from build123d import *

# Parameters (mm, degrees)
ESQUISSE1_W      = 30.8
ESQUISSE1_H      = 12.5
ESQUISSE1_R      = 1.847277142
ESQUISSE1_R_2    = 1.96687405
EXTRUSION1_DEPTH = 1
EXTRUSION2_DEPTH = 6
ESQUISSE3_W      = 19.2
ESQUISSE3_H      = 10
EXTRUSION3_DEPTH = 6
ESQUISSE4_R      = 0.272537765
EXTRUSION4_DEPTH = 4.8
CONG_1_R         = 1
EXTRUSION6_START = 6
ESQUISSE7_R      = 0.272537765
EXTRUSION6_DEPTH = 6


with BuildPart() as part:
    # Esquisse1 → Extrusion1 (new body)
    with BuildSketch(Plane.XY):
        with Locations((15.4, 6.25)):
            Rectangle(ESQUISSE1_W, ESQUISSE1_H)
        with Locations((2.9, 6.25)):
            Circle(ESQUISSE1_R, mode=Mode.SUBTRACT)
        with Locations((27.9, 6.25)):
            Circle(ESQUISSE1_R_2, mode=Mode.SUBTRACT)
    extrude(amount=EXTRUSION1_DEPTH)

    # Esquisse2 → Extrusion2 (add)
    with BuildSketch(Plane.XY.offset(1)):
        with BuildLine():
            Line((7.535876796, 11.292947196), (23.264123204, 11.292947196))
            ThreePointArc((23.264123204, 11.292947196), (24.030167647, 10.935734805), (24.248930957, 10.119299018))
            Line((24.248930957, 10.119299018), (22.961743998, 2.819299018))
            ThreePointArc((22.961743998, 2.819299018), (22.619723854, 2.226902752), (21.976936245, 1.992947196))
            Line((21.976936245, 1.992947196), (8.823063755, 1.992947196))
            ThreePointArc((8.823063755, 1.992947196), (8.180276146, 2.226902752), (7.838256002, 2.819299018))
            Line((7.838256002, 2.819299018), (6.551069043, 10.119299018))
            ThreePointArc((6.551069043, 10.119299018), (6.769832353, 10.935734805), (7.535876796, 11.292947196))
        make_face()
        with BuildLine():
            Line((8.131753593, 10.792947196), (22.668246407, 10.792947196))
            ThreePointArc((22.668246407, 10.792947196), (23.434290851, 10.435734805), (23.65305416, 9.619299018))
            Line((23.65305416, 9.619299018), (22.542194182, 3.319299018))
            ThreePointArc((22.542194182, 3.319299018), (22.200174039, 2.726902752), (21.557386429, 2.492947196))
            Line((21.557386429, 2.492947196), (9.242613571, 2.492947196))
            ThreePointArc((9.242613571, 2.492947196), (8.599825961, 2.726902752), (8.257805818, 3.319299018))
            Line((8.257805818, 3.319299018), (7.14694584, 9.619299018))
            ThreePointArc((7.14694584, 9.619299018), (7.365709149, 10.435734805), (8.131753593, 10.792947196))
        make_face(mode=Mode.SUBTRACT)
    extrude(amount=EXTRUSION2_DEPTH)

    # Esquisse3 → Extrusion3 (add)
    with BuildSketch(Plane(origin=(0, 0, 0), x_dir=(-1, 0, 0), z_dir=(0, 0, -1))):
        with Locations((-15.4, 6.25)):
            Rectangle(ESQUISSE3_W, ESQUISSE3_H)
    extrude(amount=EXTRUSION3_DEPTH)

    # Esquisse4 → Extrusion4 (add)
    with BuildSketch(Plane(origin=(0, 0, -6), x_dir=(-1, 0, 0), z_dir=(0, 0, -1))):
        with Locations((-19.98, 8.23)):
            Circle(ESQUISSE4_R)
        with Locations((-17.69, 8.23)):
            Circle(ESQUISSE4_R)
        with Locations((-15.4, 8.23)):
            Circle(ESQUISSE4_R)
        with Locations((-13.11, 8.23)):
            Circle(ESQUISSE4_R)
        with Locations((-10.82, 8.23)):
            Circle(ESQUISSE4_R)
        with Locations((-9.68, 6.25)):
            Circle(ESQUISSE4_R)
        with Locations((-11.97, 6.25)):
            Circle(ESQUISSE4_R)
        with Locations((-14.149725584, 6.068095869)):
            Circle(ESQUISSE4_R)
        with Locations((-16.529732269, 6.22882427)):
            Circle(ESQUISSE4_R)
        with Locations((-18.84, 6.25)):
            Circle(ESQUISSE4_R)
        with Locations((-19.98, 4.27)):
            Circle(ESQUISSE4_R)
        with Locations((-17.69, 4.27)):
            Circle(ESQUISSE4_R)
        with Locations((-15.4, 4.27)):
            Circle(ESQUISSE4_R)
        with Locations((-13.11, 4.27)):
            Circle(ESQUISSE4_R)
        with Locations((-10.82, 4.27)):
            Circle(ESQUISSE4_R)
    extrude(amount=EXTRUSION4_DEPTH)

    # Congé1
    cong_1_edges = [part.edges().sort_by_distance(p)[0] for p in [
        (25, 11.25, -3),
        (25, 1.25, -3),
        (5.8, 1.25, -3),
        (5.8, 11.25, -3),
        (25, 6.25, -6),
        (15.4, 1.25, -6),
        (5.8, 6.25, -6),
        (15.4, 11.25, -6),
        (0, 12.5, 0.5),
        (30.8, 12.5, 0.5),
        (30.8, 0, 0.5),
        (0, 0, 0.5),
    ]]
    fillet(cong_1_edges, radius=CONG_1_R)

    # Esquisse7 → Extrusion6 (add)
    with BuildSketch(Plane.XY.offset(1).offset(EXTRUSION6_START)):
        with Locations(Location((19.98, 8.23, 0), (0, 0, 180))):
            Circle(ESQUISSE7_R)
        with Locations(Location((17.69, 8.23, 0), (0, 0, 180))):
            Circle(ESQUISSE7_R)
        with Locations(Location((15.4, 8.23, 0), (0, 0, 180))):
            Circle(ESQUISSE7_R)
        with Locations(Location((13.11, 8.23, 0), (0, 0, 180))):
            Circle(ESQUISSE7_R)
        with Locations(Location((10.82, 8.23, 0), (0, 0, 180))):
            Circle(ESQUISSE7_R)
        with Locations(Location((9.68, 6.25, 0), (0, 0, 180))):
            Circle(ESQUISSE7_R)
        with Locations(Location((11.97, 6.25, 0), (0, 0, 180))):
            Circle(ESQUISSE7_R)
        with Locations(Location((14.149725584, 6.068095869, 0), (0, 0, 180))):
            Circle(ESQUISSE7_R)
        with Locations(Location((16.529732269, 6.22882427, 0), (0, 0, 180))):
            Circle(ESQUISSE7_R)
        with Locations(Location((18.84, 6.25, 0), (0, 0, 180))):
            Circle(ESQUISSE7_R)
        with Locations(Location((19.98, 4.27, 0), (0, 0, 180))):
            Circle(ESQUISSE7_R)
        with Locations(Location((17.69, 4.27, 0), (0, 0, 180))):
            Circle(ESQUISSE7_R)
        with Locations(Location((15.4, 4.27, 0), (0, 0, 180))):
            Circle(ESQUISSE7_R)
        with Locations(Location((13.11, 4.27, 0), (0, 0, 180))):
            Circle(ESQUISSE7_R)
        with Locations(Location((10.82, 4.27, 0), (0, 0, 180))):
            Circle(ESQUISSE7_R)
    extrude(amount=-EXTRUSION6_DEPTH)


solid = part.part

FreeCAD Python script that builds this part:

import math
import FreeCAD as App
import Part
import Sketcher
Q = App.Units.Quantity


def edges_at(feature, points):
    """Names of the edges that pass closest to the given points."""
    edges = feature.Shape.Edges
    near = lambda p: min(range(len(edges)), key=lambda i: edges[i].distToShape(Part.Vertex(*p))[0])
    return sorted({f"Edge{near(p) + 1}" for p in points})


def add_polygon(sketch, points):
    """Adds a closed chain of lines whose ends are joined by coincident constraints."""
    first, n = sketch.GeometryCount, len(points)
    for a, b in zip(points, points[1:] + points[:1]):
        sketch.addGeometry(Part.LineSegment(App.Vector(*a, 0), App.Vector(*b, 0)), False)
    for i in range(n):
        sketch.addConstraint(Sketcher.Constraint("Coincident", first + i, 2, first + (i + 1) % n, 1))

doc = App.newDocument("Part")
body = doc.addObject("PartDesign::Body", "Body")

# Sketch on XY plane
sketch1 = body.newObject("Sketcher::SketchObject", "Sketch")
sketch1.AttachmentSupport = (doc.getObject("XY_Plane"), [""])
sketch1.MapMode = "FlatFace"
add_polygon(sketch1, [(0, 12.5), (0, 0), (30.8, 0), (30.8, 12.5)])  # lines 0-3
sketch1.addGeometry(Part.Circle(App.Vector(2.9, 6.2, 0), App.Vector(0, 0, 1), 1.8), False)  # 4
sketch1.addGeometry(Part.Circle(App.Vector(27.9, 6.2, 0), App.Vector(0, 0, 1), 2), False)  # 5
sketch1.addConstraint(Sketcher.Constraint("Vertical", 0))
sketch1.addConstraint(Sketcher.Constraint("Horizontal", 1))
sketch1.addConstraint(Sketcher.Constraint("Vertical", 2))
sketch1.addConstraint(Sketcher.Constraint("Horizontal", 3))
sketch1.addConstraint(Sketcher.Constraint("Coincident", 0, 2, -1, 1))
sketch1.addConstraint(Sketcher.Constraint("Horizontal", 4, 3, 5, 3))
sketch1.addConstraint(Sketcher.Constraint("DistanceX", 1, 1, 1, 2, Q("30.8 mm")))
sketch1.addConstraint(Sketcher.Constraint("DistanceY", 0, 2, 0, 1, Q("12.5 mm")))
sketch1.addConstraint(Sketcher.Constraint("DistanceX", 4, 3, 5, 3, Q("25 mm")))
sketch1.addConstraint(Sketcher.Constraint("DistanceX", -1, 1, 4, 3, Q("2.9 mm")))
sketch1.addConstraint(Sketcher.Constraint("Diameter", 5, Q("3.933748 mm")))
sketch1.addConstraint(Sketcher.Constraint("DistanceY", -1, 1, 4, 3, Q("6.25 mm")))
sketch1.addConstraint(Sketcher.Constraint("Diameter", 4, Q("3.694554 mm")))
pad1 = body.newObject("PartDesign::Pad", "Pad")
pad1.Profile = sketch1
pad1.Length = 1

# Sketch on XY plane
sketch2 = body.newObject("Sketcher::SketchObject", "Sketch001")
sketch2.AttachmentSupport = (doc.getObject("XY_Plane"), [""])
sketch2.MapMode = "FlatFace"
sketch2.AttachmentOffset = App.Placement(App.Vector(0, 0, 1), App.Rotation())
sketch2.addGeometry(Part.LineSegment(App.Vector(23.3, 11.3, 0), App.Vector(7.5, 11.3, 0)), False)
sketch2.addGeometry(Part.ArcOfCircle(Part.Circle(App.Vector(7.5, 10.3, 0), App.Vector(0, 0, 1), 1), math.radians(90), math.radians(190)), False)
sketch2.addGeometry(Part.LineSegment(App.Vector(6.6, 10.1, 0), App.Vector(7.8, 2.8, 0)), False)
sketch2.addGeometry(Part.ArcOfCircle(Part.Circle(App.Vector(8.8, 3, 0), App.Vector(0, 0, 1), 1), math.radians(-170), math.radians(-90)), False)
sketch2.addGeometry(Part.LineSegment(App.Vector(8.8, 2, 0), App.Vector(22, 2, 0)), False)
sketch2.addGeometry(Part.ArcOfCircle(Part.Circle(App.Vector(22, 3, 0), App.Vector(0, 0, 1), 1), math.radians(-90), math.radians(-10)), False)
sketch2.addGeometry(Part.LineSegment(App.Vector(23, 2.8, 0), App.Vector(24.2, 10.1, 0)), False)
sketch2.addGeometry(Part.ArcOfCircle(Part.Circle(App.Vector(23.3, 10.3, 0), App.Vector(0, 0, 1), 1), math.radians(-10), math.radians(90)), False)
sketch2.addGeometry(Part.LineSegment(App.Vector(8.1, 10.8, 0), App.Vector(22.7, 10.8, 0)), False)
sketch2.addGeometry(Part.ArcOfCircle(Part.Circle(App.Vector(22.7, 9.8, 0), App.Vector(0, 0, 1), 1), math.radians(-10), math.radians(90)), False)
sketch2.addGeometry(Part.LineSegment(App.Vector(23.7, 9.6, 0), App.Vector(22.5, 3.3, 0)), False)
sketch2.addGeometry(Part.ArcOfCircle(Part.Circle(App.Vector(21.6, 3.5, 0), App.Vector(0, 0, 1), 1), math.radians(-90), math.radians(-10)), False)
sketch2.addGeometry(Part.LineSegment(App.Vector(21.6, 2.5, 0), App.Vector(9.2, 2.5, 0)), False)
sketch2.addGeometry(Part.ArcOfCircle(Part.Circle(App.Vector(9.2, 3.5, 0), App.Vector(0, 0, 1), 1), math.radians(-170), math.radians(-90)), False)
sketch2.addGeometry(Part.LineSegment(App.Vector(8.3, 3.3, 0), App.Vector(7.1, 9.6, 0)), False)
sketch2.addGeometry(Part.ArcOfCircle(Part.Circle(App.Vector(8.1, 9.8, 0), App.Vector(0, 0, 1), 1), math.radians(90), math.radians(190)), False)
sketch2.addConstraint(Sketcher.Constraint("Tangent", 0, 2, 1, 1))
sketch2.addConstraint(Sketcher.Constraint("Tangent", 1, 2, 2, 1))
sketch2.addConstraint(Sketcher.Constraint("Tangent", 2, 2, 3, 1))
sketch2.addConstraint(Sketcher.Constraint("Tangent", 3, 2, 4, 1))
sketch2.addConstraint(Sketcher.Constraint("Tangent", 4, 2, 5, 1))
sketch2.addConstraint(Sketcher.Constraint("Tangent", 5, 2, 6, 1))
sketch2.addConstraint(Sketcher.Constraint("Tangent", 6, 2, 7, 1))
sketch2.addConstraint(Sketcher.Constraint("Tangent", 7, 2, 0, 1))
sketch2.addConstraint(Sketcher.Constraint("Tangent", 8, 2, 9, 2))
sketch2.addConstraint(Sketcher.Constraint("Tangent", 9, 1, 10, 1))
sketch2.addConstraint(Sketcher.Constraint("Tangent", 10, 2, 11, 2))
sketch2.addConstraint(Sketcher.Constraint("Tangent", 11, 1, 12, 1))
sketch2.addConstraint(Sketcher.Constraint("Tangent", 12, 2, 13, 2))
sketch2.addConstraint(Sketcher.Constraint("Tangent", 13, 1, 14, 1))
sketch2.addConstraint(Sketcher.Constraint("Tangent", 14, 2, 15, 2))
sketch2.addConstraint(Sketcher.Constraint("Tangent", 15, 1, 8, 1))
sketch2.addConstraint(Sketcher.Constraint("Horizontal", 0))
sketch2.addConstraint(Sketcher.Constraint("Horizontal", 4))
sketch2.addConstraint(Sketcher.Constraint("Horizontal", 8))
sketch2.addConstraint(Sketcher.Constraint("Horizontal", 12))
sketch2.addConstraint(Sketcher.Constraint("Equal", 1, 3))
sketch2.addConstraint(Sketcher.Constraint("Equal", 3, 5))
sketch2.addConstraint(Sketcher.Constraint("Equal", 5, 7))
sketch2.addConstraint(Sketcher.Constraint("Equal", 7, 9))
sketch2.addConstraint(Sketcher.Constraint("Equal", 9, 11))
sketch2.addConstraint(Sketcher.Constraint("Equal", 11, 13))
sketch2.addConstraint(Sketcher.Constraint("Equal", 13, 15))
sketch2.addConstraint(Sketcher.Constraint("Parallel", 6, 10))
sketch2.addConstraint(Sketcher.Constraint("Parallel", 2, 14))
sketch2.addConstraint(Sketcher.Constraint("Horizontal", 2, 2, 5, 2))
sketch2.addConstraint(Sketcher.Constraint("Radius", 1, Q("1 mm")))
sketch2.addConstraint(Sketcher.Constraint("Angle", 2, Q("-80 deg")))
sketch2.addConstraint(Sketcher.Constraint("DistanceY", 3, 3, 1, 3, Q("7.3 mm")))
sketch2.addConstraint(Sketcher.Constraint("DistanceY", 9, 3, 7, 3, Q("0.5 mm")))
sketch2.addConstraint(Sketcher.Constraint("DistanceY", 5, 3, 11, 3, Q("0.5 mm")))
sketch2.addConstraint(Sketcher.Constraint("DistanceY", -1, 1, 1, 2, Q("10.119299 mm")))
sketch2.addConstraint(Sketcher.Constraint("DistanceX", 0, 2, 0, 1, Q("15.728246 mm")))
sketch2.addConstraint(Sketcher.Constraint("DistanceX", 8, 1, 8, 2, Q("14.536493 mm")))
sketch2.addConstraint(Sketcher.Constraint("DistanceX", -1, 1, 1, 2, Q("6.551069 mm")))
sketch2.addConstraint(Sketcher.Constraint("DistanceX", 5, 3, 9, 3, Q("0.69131 mm")))
pad2 = body.newObject("PartDesign::Pad", "Pad001")
pad2.Profile = sketch2
pad2.Length = 6

# Sketch on XY plane
sketch3 = body.newObject("Sketcher::SketchObject", "Sketch002")
sketch3.AttachmentSupport = (doc.getObject("XY_Plane"), [""])
sketch3.MapMode = "FlatFace"
add_polygon(sketch3, [(25, 11), (25, 1), (6, 1), (6, 11)])  # lines 0-3
sketch3.addConstraint(Sketcher.Constraint("Vertical", 0))
sketch3.addConstraint(Sketcher.Constraint("Horizontal", 1))
sketch3.addConstraint(Sketcher.Constraint("Vertical", 2))
sketch3.addConstraint(Sketcher.Constraint("Horizontal", 3))
sketch3.addConstraint(Sketcher.Constraint("DistanceY", 0, 2, 0, 1, Q("10 mm")))
sketch3.addConstraint(Sketcher.Constraint("DistanceX", 1, 2, 1, 1, Q("19.2 mm")))
sketch3.addConstraint(Sketcher.Constraint("DistanceX", -1, 1, 0, 2, Q("25 mm")))
sketch3.addConstraint(Sketcher.Constraint("DistanceY", -1, 1, 0, 2, Q("1.25 mm")))
pad3 = body.newObject("PartDesign::Pad", "Pad002")
pad3.Profile = sketch3
pad3.Length = 6
pad3.Reversed = True

# Sketch on XY plane
sketch4 = body.newObject("Sketcher::SketchObject", "Sketch003")
sketch4.AttachmentSupport = (doc.getObject("XY_Plane"), [""])
sketch4.MapMode = "FlatFace"
sketch4.AttachmentOffset = App.Placement(App.Vector(0, 0, -6), App.Rotation())
sketch4.addGeometry(Part.Circle(App.Vector(19.98, 8.23, 0), App.Vector(0, 0, 1), 0.27), False)
sketch4.addGeometry(Part.Circle(App.Vector(17.69, 8.23, 0), App.Vector(0, 0, 1), 0.27), False)
sketch4.addGeometry(Part.Circle(App.Vector(15.4, 8.23, 0), App.Vector(0, 0, 1), 0.27), False)
sketch4.addGeometry(Part.Circle(App.Vector(13.11, 8.23, 0), App.Vector(0, 0, 1), 0.27), False)
sketch4.addGeometry(Part.Circle(App.Vector(10.82, 8.23, 0), App.Vector(0, 0, 1), 0.27), False)
sketch4.addGeometry(Part.Circle(App.Vector(9.68, 6.25, 0), App.Vector(0, 0, 1), 0.27), False)
sketch4.addGeometry(Part.Circle(App.Vector(11.97, 6.25, 0), App.Vector(0, 0, 1), 0.27), False)
sketch4.addGeometry(Part.Circle(App.Vector(14.15, 6.07, 0), App.Vector(0, 0, 1), 0.27), False)
sketch4.addGeometry(Part.Circle(App.Vector(16.53, 6.23, 0), App.Vector(0, 0, 1), 0.27), False)
sketch4.addGeometry(Part.Circle(App.Vector(18.84, 6.25, 0), App.Vector(0, 0, 1), 0.27), False)
sketch4.addGeometry(Part.Circle(App.Vector(19.98, 4.27, 0), App.Vector(0, 0, 1), 0.27), False)
sketch4.addGeometry(Part.Circle(App.Vector(17.69, 4.27, 0), App.Vector(0, 0, 1), 0.27), False)
sketch4.addGeometry(Part.Circle(App.Vector(15.4, 4.27, 0), App.Vector(0, 0, 1), 0.27), False)
sketch4.addGeometry(Part.Circle(App.Vector(13.11, 4.27, 0), App.Vector(0, 0, 1), 0.27), False)
sketch4.addGeometry(Part.Circle(App.Vector(10.82, 4.27, 0), App.Vector(0, 0, 1), 0.27), False)
sketch4.addConstraint(Sketcher.Constraint("Equal", 0, 1))
sketch4.addConstraint(Sketcher.Constraint("Equal", 1, 2))
sketch4.addConstraint(Sketcher.Constraint("Equal", 2, 3))
sketch4.addConstraint(Sketcher.Constraint("Equal", 3, 4))
sketch4.addConstraint(Sketcher.Constraint("Equal", 4, 5))
sketch4.addConstraint(Sketcher.Constraint("Equal", 5, 6))
sketch4.addConstraint(Sketcher.Constraint("Equal", 6, 7))
sketch4.addConstraint(Sketcher.Constraint("Equal", 7, 8))
sketch4.addConstraint(Sketcher.Constraint("Equal", 8, 9))
sketch4.addConstraint(Sketcher.Constraint("Equal", 9, 10))
sketch4.addConstraint(Sketcher.Constraint("Equal", 10, 11))
sketch4.addConstraint(Sketcher.Constraint("Equal", 11, 12))
sketch4.addConstraint(Sketcher.Constraint("Equal", 12, 13))
sketch4.addConstraint(Sketcher.Constraint("Equal", 13, 14))
sketch4.addConstraint(Sketcher.Constraint("Horizontal", 0, 3, 1, 3))
sketch4.addConstraint(Sketcher.Constraint("Horizontal", 1, 3, 2, 3))
sketch4.addConstraint(Sketcher.Constraint("Horizontal", 2, 3, 3, 3))
sketch4.addConstraint(Sketcher.Constraint("Horizontal", 3, 3, 4, 3))
sketch4.addConstraint(Sketcher.Constraint("Horizontal", 5, 3, 6, 3))
sketch4.addConstraint(Sketcher.Constraint("Horizontal", 6, 3, 9, 3))
sketch4.addConstraint(Sketcher.Constraint("Horizontal", 10, 3, 11, 3))
sketch4.addConstraint(Sketcher.Constraint("Horizontal", 11, 3, 12, 3))
sketch4.addConstraint(Sketcher.Constraint("Horizontal", 12, 3, 13, 3))
sketch4.addConstraint(Sketcher.Constraint("Horizontal", 13, 3, 14, 3))
sketch4.addConstraint(Sketcher.Constraint("Vertical", 0, 3, 10, 3))
sketch4.addConstraint(Sketcher.Constraint("Vertical", 1, 3, 11, 3))
sketch4.addConstraint(Sketcher.Constraint("Vertical", 2, 3, 12, 3))
sketch4.addConstraint(Sketcher.Constraint("Vertical", 3, 3, 13, 3))
sketch4.addConstraint(Sketcher.Constraint("Vertical", 4, 3, 14, 3))
sketch4.addConstraint(Sketcher.Constraint("DistanceX", -1, 1, 2, 3, Q("15.4 mm")))
sketch4.addConstraint(Sketcher.Constraint("DistanceX", 5, 3, 0, 3, Q("10.3 mm")))
sketch4.addConstraint(Sketcher.Constraint("DistanceX", -1, 1, 0, 3, Q("19.98 mm")))
sketch4.addConstraint(Sketcher.Constraint("DistanceY", -1, 1, 0, 3, Q("8.23 mm")))
sketch4.addConstraint(Sketcher.Constraint("DistanceX", -1, 1, 1, 3, Q("17.69 mm")))
sketch4.addConstraint(Sketcher.Constraint("DistanceX", -1, 1, 3, 3, Q("13.11 mm")))
sketch4.addConstraint(Sketcher.Constraint("DistanceX", -1, 1, 4, 3, Q("10.82 mm")))
sketch4.addConstraint(Sketcher.Constraint("DistanceY", -1, 1, 5, 3, Q("6.25 mm")))
sketch4.addConstraint(Sketcher.Constraint("DistanceX", -1, 1, 6, 3, Q("11.97 mm")))
sketch4.addConstraint(Sketcher.Constraint("DistanceX", -1, 1, 9, 3, Q("18.84 mm")))
sketch4.addConstraint(Sketcher.Constraint("DistanceY", -1, 1, 10, 3, Q("4.27 mm")))
sketch4.addConstraint(Sketcher.Constraint("Diameter", 0, Q("0.545076 mm")))
sketch4.addConstraint(Sketcher.Constraint("DistanceY", 7, 3, 8, 3, Q("0.160728 mm")))
sketch4.addConstraint(Sketcher.Constraint("DistanceX", -1, 1, 7, 3, Q("14.149726 mm")))
sketch4.addConstraint(Sketcher.Constraint("DistanceY", -1, 1, 7, 3, Q("6.068096 mm")))
sketch4.addConstraint(Sketcher.Constraint("DistanceX", -1, 1, 8, 3, Q("16.529732 mm")))
pad4 = body.newObject("PartDesign::Pad", "Pad003")
pad4.Profile = sketch4
pad4.Length = 4.8
pad4.Reversed = True
doc.recompute()

fillet = body.newObject("PartDesign::Fillet", "Fillet")
fillet.Base = (pad4, edges_at(pad4, [
    (25, 11.25, -3),
    (25, 1.25, -3),
    (5.8, 1.25, -3),
    (5.8, 11.25, -3),
    (25, 6.25, -6),
    (15.4, 1.25, -6),
    (5.8, 6.25, -6),
    (15.4, 11.25, -6),
    (0, 12.5, 0.5),
    (30.8, 12.5, 0.5),
    (30.8, 0, 0.5),
    (0, 0, 0.5),
]))
fillet.Radius = 1

# Sketch on XY plane
sketch5 = body.newObject("Sketcher::SketchObject", "Sketch004")
sketch5.AttachmentSupport = (doc.getObject("XY_Plane"), [""])
sketch5.MapMode = "FlatFace"
sketch5.AttachmentOffset = App.Placement(App.Vector(0, 0, 7), App.Rotation())
sketch5.addGeometry(Part.Circle(App.Vector(19.98, 8.23, 0), App.Vector(0, 0, 1), 0.27), False)
sketch5.addGeometry(Part.Circle(App.Vector(17.69, 8.23, 0), App.Vector(0, 0, 1), 0.27), False)
sketch5.addGeometry(Part.Circle(App.Vector(15.4, 8.23, 0), App.Vector(0, 0, 1), 0.27), False)
sketch5.addGeometry(Part.Circle(App.Vector(13.11, 8.23, 0), App.Vector(0, 0, 1), 0.27), False)
sketch5.addGeometry(Part.Circle(App.Vector(10.82, 8.23, 0), App.Vector(0, 0, 1), 0.27), False)
sketch5.addGeometry(Part.Circle(App.Vector(9.68, 6.25, 0), App.Vector(0, 0, 1), 0.27), False)
sketch5.addGeometry(Part.Circle(App.Vector(11.97, 6.25, 0), App.Vector(0, 0, 1), 0.27), False)
sketch5.addGeometry(Part.Circle(App.Vector(14.15, 6.07, 0), App.Vector(0, 0, 1), 0.27), False)
sketch5.addGeometry(Part.Circle(App.Vector(16.53, 6.23, 0), App.Vector(0, 0, 1), 0.27), False)
sketch5.addGeometry(Part.Circle(App.Vector(18.84, 6.25, 0), App.Vector(0, 0, 1), 0.27), False)
sketch5.addGeometry(Part.Circle(App.Vector(19.98, 4.27, 0), App.Vector(0, 0, 1), 0.27), False)
sketch5.addGeometry(Part.Circle(App.Vector(17.69, 4.27, 0), App.Vector(0, 0, 1), 0.27), False)
sketch5.addGeometry(Part.Circle(App.Vector(15.4, 4.27, 0), App.Vector(0, 0, 1), 0.27), False)
sketch5.addGeometry(Part.Circle(App.Vector(13.11, 4.27, 0), App.Vector(0, 0, 1), 0.27), False)
sketch5.addGeometry(Part.Circle(App.Vector(10.82, 4.27, 0), App.Vector(0, 0, 1), 0.27), False)
sketch5.addConstraint(Sketcher.Constraint("Equal", 0, 1))
sketch5.addConstraint(Sketcher.Constraint("Equal", 1, 2))
sketch5.addConstraint(Sketcher.Constraint("Equal", 2, 3))
sketch5.addConstraint(Sketcher.Constraint("Equal", 3, 4))
sketch5.addConstraint(Sketcher.Constraint("Equal", 4, 5))
sketch5.addConstraint(Sketcher.Constraint("Equal", 5, 6))
sketch5.addConstraint(Sketcher.Constraint("Equal", 6, 7))
sketch5.addConstraint(Sketcher.Constraint("Equal", 7, 8))
sketch5.addConstraint(Sketcher.Constraint("Equal", 8, 9))
sketch5.addConstraint(Sketcher.Constraint("Equal", 9, 10))
sketch5.addConstraint(Sketcher.Constraint("Equal", 10, 11))
sketch5.addConstraint(Sketcher.Constraint("Equal", 11, 12))
sketch5.addConstraint(Sketcher.Constraint("Equal", 12, 13))
sketch5.addConstraint(Sketcher.Constraint("Equal", 13, 14))
sketch5.addConstraint(Sketcher.Constraint("Horizontal", 0, 3, 1, 3))
sketch5.addConstraint(Sketcher.Constraint("Horizontal", 1, 3, 2, 3))
sketch5.addConstraint(Sketcher.Constraint("Horizontal", 2, 3, 3, 3))
sketch5.addConstraint(Sketcher.Constraint("Horizontal", 3, 3, 4, 3))
sketch5.addConstraint(Sketcher.Constraint("Horizontal", 5, 3, 6, 3))
sketch5.addConstraint(Sketcher.Constraint("Horizontal", 6, 3, 9, 3))
sketch5.addConstraint(Sketcher.Constraint("Horizontal", 10, 3, 11, 3))
sketch5.addConstraint(Sketcher.Constraint("Horizontal", 11, 3, 12, 3))
sketch5.addConstraint(Sketcher.Constraint("Horizontal", 12, 3, 13, 3))
sketch5.addConstraint(Sketcher.Constraint("Horizontal", 13, 3, 14, 3))
sketch5.addConstraint(Sketcher.Constraint("Vertical", 0, 3, 10, 3))
sketch5.addConstraint(Sketcher.Constraint("Vertical", 1, 3, 11, 3))
sketch5.addConstraint(Sketcher.Constraint("Vertical", 2, 3, 12, 3))
sketch5.addConstraint(Sketcher.Constraint("Vertical", 3, 3, 13, 3))
sketch5.addConstraint(Sketcher.Constraint("Vertical", 4, 3, 14, 3))
sketch5.addConstraint(Sketcher.Constraint("DistanceX", -1, 1, 2, 3, Q("15.4 mm")))
sketch5.addConstraint(Sketcher.Constraint("DistanceX", 5, 3, 0, 3, Q("10.3 mm")))
sketch5.addConstraint(Sketcher.Constraint("DistanceX", -1, 1, 0, 3, Q("19.98 mm")))
sketch5.addConstraint(Sketcher.Constraint("DistanceY", -1, 1, 0, 3, Q("8.23 mm")))
sketch5.addConstraint(Sketcher.Constraint("DistanceX", -1, 1, 1, 3, Q("17.69 mm")))
sketch5.addConstraint(Sketcher.Constraint("DistanceX", -1, 1, 3, 3, Q("13.11 mm")))
sketch5.addConstraint(Sketcher.Constraint("DistanceX", -1, 1, 4, 3, Q("10.82 mm")))
sketch5.addConstraint(Sketcher.Constraint("DistanceY", -1, 1, 5, 3, Q("6.25 mm")))
sketch5.addConstraint(Sketcher.Constraint("DistanceX", -1, 1, 6, 3, Q("11.97 mm")))
sketch5.addConstraint(Sketcher.Constraint("DistanceX", -1, 1, 9, 3, Q("18.84 mm")))
sketch5.addConstraint(Sketcher.Constraint("DistanceY", -1, 1, 10, 3, Q("4.27 mm")))
sketch5.addConstraint(Sketcher.Constraint("Diameter", 0, Q("0.545076 mm")))
sketch5.addConstraint(Sketcher.Constraint("DistanceY", 7, 3, 8, 3, Q("0.160728 mm")))
sketch5.addConstraint(Sketcher.Constraint("DistanceX", -1, 1, 7, 3, Q("14.149726 mm")))
sketch5.addConstraint(Sketcher.Constraint("DistanceY", -1, 1, 7, 3, Q("6.068096 mm")))
sketch5.addConstraint(Sketcher.Constraint("DistanceX", -1, 1, 8, 3, Q("16.529732 mm")))
pad5 = body.newObject("PartDesign::Pad", "Pad004")
pad5.Profile = sketch5
pad5.Length = 6
pad5.Reversed = True

doc.recompute()
